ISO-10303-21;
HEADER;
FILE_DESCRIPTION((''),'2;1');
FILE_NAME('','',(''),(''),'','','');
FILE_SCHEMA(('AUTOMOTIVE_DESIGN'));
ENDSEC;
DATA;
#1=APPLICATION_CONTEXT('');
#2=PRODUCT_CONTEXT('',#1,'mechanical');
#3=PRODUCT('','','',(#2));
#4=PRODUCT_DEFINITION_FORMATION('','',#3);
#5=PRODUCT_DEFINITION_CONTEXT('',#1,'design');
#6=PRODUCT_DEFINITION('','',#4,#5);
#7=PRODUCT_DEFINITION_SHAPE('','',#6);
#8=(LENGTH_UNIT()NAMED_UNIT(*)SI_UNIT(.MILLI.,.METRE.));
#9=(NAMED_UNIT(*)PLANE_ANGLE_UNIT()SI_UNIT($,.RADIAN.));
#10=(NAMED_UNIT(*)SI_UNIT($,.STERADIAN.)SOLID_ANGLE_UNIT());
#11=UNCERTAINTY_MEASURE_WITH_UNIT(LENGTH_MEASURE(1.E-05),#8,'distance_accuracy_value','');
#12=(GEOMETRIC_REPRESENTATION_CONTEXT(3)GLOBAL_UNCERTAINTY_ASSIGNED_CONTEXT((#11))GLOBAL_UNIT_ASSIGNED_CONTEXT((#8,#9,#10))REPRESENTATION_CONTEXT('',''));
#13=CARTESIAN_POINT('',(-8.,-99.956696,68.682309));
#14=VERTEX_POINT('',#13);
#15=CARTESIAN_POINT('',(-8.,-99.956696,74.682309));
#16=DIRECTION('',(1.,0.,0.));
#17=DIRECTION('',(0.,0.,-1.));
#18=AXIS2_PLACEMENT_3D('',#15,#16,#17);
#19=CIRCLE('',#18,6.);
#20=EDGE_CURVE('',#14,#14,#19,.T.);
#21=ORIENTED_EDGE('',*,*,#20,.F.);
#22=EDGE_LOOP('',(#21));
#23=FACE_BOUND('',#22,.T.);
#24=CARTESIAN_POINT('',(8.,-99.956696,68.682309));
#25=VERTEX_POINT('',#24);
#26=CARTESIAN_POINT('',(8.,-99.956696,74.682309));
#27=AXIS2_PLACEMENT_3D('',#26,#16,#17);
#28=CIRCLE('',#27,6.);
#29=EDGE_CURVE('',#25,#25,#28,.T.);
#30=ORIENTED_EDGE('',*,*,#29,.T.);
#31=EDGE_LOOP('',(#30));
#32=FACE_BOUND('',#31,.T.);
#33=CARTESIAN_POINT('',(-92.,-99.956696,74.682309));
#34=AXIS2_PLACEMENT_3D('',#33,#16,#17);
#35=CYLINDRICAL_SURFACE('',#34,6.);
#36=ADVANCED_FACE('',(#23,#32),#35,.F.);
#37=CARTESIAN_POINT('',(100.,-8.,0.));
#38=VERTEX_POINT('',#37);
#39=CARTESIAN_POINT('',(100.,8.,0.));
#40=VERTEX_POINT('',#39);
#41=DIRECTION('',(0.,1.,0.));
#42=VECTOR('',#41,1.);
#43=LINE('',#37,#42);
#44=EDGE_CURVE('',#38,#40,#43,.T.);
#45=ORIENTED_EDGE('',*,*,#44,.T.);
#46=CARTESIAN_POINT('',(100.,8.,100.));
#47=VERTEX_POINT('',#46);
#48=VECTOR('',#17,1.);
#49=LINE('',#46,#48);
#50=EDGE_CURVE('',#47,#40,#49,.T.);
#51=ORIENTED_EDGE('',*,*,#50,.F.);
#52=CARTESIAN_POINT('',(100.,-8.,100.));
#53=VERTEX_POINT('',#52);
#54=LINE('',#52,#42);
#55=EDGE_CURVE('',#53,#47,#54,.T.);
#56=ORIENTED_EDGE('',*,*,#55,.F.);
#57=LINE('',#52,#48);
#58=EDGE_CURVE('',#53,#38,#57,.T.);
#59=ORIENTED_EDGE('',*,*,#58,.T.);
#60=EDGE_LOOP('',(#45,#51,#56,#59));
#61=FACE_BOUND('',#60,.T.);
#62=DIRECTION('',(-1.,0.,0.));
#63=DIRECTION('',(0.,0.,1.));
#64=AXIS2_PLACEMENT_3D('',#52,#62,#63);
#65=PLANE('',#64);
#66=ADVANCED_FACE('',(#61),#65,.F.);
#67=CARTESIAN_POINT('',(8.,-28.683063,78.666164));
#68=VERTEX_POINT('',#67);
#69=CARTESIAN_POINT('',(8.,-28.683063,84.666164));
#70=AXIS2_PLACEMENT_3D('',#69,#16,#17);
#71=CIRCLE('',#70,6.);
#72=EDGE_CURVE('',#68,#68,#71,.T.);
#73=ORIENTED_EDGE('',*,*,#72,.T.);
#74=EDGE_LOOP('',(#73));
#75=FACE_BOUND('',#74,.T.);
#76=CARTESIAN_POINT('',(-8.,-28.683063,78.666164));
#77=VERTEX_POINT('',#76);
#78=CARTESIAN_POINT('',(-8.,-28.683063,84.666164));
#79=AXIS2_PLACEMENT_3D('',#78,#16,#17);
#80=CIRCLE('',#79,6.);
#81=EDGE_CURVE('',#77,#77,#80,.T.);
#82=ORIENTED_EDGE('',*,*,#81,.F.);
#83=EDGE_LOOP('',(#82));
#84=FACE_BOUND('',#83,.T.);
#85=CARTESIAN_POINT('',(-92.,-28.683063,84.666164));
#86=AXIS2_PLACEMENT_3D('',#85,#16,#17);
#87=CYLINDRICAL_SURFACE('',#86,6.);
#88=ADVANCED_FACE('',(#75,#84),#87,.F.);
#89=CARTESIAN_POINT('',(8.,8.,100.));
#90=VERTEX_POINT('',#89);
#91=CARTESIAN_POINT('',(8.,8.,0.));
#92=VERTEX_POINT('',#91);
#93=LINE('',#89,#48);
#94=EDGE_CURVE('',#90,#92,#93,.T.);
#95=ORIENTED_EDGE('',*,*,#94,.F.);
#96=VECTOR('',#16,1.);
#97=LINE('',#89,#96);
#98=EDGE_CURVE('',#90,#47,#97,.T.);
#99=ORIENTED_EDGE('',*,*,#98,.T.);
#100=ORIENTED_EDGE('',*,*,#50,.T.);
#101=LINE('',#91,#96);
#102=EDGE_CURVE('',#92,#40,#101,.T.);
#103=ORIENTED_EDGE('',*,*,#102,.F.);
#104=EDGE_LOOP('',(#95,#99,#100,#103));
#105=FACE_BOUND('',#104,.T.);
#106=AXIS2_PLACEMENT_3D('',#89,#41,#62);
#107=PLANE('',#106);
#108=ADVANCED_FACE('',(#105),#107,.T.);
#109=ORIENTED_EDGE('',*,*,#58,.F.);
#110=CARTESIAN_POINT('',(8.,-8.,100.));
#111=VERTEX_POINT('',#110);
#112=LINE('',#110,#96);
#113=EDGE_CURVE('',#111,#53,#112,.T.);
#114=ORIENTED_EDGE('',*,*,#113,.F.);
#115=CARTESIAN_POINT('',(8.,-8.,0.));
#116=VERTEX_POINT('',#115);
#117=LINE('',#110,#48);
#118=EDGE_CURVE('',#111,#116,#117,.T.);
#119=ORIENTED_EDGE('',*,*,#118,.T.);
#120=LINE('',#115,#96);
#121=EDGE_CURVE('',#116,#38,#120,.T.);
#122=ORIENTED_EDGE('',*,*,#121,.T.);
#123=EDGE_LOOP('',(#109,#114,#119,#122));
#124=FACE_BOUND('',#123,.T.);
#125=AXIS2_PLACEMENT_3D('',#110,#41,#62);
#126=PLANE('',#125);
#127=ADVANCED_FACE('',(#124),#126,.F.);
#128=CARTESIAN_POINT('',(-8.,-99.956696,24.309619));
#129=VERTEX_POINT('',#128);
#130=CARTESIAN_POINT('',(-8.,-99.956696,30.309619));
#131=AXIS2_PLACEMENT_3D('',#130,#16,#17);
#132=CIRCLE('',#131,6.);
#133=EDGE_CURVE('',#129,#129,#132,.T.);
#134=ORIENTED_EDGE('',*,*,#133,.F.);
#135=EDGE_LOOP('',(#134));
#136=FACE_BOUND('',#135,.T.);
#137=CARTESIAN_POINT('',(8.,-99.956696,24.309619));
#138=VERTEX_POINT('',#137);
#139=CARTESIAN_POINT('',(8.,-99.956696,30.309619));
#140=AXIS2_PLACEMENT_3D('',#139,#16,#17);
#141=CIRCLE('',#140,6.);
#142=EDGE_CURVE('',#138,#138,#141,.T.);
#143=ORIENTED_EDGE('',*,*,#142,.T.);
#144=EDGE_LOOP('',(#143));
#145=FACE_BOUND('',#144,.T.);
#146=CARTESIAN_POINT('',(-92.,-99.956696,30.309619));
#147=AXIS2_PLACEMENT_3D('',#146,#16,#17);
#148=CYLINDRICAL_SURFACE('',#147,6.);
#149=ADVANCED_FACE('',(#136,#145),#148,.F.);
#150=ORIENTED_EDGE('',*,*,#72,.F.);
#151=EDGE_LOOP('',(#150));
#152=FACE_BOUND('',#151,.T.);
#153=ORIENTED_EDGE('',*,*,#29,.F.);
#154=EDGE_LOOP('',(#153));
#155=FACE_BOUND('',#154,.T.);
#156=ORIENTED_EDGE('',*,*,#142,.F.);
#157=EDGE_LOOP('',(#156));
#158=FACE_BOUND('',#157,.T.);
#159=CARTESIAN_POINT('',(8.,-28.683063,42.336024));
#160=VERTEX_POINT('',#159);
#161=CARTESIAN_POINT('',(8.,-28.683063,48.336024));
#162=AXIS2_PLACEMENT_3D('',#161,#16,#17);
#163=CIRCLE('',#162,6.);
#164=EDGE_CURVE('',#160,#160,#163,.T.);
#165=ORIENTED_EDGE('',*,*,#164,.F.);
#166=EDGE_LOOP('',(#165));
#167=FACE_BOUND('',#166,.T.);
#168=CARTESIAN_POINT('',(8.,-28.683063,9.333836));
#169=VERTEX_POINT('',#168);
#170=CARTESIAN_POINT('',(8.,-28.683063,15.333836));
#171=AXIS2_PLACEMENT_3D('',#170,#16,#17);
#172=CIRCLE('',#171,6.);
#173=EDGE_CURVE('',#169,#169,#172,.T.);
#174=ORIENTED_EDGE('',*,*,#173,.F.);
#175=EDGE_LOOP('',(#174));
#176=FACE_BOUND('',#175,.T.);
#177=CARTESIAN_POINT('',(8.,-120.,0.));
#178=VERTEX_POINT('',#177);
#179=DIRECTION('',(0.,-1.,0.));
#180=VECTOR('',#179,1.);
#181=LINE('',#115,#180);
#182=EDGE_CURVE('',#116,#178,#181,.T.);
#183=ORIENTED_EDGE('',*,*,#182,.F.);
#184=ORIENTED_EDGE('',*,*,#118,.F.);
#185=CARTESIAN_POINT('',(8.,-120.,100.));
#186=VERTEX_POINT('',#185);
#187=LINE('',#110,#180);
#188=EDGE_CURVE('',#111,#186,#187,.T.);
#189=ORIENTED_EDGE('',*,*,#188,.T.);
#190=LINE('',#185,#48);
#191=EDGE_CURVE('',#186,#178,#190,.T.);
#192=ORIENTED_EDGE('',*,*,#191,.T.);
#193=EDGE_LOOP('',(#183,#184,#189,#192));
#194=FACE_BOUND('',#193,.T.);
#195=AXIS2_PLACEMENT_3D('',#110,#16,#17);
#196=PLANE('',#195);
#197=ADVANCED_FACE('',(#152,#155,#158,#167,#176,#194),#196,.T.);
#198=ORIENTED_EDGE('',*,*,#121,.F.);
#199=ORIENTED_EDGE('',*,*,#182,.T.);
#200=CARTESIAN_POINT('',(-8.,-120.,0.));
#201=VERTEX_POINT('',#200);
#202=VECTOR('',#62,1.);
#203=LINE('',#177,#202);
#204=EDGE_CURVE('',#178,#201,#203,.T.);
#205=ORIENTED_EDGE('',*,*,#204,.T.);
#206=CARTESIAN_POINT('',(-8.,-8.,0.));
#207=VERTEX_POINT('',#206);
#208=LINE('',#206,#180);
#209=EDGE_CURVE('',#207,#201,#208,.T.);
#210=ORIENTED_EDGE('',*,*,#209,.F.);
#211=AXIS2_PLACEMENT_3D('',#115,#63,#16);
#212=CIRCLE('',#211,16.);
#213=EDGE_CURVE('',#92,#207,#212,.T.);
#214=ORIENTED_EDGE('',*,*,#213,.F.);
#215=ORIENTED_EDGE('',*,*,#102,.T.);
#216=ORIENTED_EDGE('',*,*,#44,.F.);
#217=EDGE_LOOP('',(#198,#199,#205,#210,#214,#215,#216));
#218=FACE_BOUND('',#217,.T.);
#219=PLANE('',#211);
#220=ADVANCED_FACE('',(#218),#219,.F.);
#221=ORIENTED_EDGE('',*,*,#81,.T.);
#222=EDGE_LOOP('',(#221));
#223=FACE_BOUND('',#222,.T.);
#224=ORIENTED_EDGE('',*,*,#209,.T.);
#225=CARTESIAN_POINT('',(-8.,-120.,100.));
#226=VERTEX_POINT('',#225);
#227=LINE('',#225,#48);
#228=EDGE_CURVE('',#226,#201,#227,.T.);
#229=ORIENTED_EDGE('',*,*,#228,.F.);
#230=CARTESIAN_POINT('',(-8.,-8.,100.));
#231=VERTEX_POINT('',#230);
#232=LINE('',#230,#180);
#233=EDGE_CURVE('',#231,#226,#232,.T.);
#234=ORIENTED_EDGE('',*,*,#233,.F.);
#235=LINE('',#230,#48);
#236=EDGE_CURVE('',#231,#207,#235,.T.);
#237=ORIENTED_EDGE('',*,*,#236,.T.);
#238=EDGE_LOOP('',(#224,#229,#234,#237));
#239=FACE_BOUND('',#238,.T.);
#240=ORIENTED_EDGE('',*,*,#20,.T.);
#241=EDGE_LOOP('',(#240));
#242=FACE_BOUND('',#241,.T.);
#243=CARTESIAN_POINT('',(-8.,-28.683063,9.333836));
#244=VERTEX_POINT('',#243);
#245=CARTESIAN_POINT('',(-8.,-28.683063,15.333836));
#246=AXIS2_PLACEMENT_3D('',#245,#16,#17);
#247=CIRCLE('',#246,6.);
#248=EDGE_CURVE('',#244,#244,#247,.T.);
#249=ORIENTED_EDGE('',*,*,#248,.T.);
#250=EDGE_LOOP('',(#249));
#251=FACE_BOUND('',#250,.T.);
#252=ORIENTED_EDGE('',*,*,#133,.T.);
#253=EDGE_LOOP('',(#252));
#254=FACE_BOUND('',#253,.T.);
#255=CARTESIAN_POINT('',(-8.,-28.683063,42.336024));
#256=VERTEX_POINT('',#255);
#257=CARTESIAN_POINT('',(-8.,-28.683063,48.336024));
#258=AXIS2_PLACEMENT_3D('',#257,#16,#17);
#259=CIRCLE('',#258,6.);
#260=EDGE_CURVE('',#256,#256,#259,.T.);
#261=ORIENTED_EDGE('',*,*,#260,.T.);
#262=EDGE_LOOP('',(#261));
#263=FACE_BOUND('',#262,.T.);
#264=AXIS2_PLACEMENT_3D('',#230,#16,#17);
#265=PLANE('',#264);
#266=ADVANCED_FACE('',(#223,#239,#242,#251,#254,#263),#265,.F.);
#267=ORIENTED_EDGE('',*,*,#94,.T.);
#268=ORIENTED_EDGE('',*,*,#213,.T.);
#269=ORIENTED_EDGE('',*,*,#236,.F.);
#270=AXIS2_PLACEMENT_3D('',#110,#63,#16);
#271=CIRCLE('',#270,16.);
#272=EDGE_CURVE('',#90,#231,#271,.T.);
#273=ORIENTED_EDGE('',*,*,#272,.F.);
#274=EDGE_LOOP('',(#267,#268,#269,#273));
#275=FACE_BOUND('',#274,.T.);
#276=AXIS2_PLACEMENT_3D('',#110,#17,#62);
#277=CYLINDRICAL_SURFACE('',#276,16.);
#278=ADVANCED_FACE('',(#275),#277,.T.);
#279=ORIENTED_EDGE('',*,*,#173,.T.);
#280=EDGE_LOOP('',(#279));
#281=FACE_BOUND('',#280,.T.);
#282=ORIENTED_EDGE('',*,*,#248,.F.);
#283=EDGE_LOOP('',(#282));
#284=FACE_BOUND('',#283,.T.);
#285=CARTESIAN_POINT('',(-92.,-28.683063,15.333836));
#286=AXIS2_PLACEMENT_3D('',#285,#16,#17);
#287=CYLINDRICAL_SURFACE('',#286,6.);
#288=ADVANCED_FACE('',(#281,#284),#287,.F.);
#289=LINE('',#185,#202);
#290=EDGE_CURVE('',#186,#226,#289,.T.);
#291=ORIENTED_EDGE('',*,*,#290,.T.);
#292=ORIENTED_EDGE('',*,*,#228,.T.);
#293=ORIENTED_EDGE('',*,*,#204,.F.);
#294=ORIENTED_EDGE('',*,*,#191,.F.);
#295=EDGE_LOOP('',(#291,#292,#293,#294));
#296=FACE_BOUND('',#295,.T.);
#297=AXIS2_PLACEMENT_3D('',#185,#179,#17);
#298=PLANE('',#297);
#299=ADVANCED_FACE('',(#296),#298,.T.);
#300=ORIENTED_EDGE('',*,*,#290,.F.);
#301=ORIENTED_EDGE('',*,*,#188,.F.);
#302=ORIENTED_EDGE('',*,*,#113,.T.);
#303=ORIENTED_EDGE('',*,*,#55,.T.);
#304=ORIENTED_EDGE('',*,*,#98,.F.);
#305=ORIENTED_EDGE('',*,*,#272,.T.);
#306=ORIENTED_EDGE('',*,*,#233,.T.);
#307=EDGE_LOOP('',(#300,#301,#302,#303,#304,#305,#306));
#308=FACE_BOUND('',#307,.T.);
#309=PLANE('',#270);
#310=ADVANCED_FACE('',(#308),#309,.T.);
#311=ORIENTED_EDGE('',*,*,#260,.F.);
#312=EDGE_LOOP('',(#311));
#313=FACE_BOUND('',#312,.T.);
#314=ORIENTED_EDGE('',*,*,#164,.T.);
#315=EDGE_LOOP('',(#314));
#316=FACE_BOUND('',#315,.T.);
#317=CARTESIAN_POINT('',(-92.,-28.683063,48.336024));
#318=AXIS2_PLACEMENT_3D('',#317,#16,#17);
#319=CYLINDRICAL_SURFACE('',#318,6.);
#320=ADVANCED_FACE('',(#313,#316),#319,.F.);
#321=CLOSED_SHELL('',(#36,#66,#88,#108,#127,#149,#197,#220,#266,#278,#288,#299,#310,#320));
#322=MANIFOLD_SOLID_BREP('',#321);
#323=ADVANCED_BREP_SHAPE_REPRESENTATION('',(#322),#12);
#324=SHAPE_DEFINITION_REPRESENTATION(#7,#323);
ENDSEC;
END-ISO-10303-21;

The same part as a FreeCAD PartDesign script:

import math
import FreeCAD as App
import Part
import Sketcher
from FreeCAD import Vector

doc = App.newDocument("Part")
body = doc.addObject("PartDesign::Body", "Body")

# Sketch on XY plane
sketch1 = doc.addObject("Sketcher::SketchObject", "Sketch")
body.addObject(sketch1)
sketch1.AttachmentSupport = (doc.XY_Plane, [""])
sketch1.MapMode = "FlatFace"
sketch1.addGeometry([
    Part.LineSegment(Vector(8, -120, 0), Vector(8, -8, 0)),  # 0
    Part.LineSegment(Vector(8, -8, 0), Vector(100, -8, 0)),  # 1
    Part.LineSegment(Vector(100, -8, 0), Vector(100, 8, 0)),  # 2
    Part.LineSegment(Vector(100, 8, 0), Vector(8, 8, 0)),  # 3
    Part.ArcOfCircle(Part.Circle(Vector(8, -8, 0), Vector(0, 0, 1), 16), math.radians(90), math.radians(180)),  # 4
    Part.LineSegment(Vector(-8, -8, 0), Vector(-8, -120, 0)),  # 5
    Part.LineSegment(Vector(-8, -120, 0), Vector(8, -120, 0)),  # 6
], False)
sketch1.addConstraint([
    Sketcher.Constraint("Coincident", 0, 2, 1, 1),
    Sketcher.Constraint("Coincident", 1, 2, 2, 1),
    Sketcher.Constraint("Coincident", 2, 2, 3, 1),
    Sketcher.Constraint("Tangent", 3, 2, 4, 1),
    Sketcher.Constraint("Tangent", 4, 2, 5, 1),
    Sketcher.Constraint("Coincident", 5, 2, 6, 1),
    Sketcher.Constraint("Coincident", 6, 2, 0, 1),
    Sketcher.Constraint("Vertical", 0),
    Sketcher.Constraint("Horizontal", 1),
    Sketcher.Constraint("Vertical", 2),
    Sketcher.Constraint("Horizontal", 3),
    Sketcher.Constraint("Vertical", 5),
    Sketcher.Constraint("Horizontal", 6),
    Sketcher.Constraint("Coincident", 0, 2, 4, 3),
    Sketcher.Constraint("Symmetric", 3, 2, 4, 2, -1, 1),
    Sketcher.Constraint("Radius", 4, 16.0),
    Sketcher.Constraint("DistanceX", 1, 1, 1, 2, 92.0),
    Sketcher.Constraint("DistanceY", 0, 1, 0, 2, 112.0),
])
pad1 = doc.addObject("PartDesign::Pad", "Pad")
body.addObject(pad1)
pad1.Profile = sketch1
pad1.Length = 100

# Sketch on YZ plane
sketch2 = doc.addObject("Sketcher::SketchObject", "Sketch001")
body.addObject(sketch2)
sketch2.AttachmentSupport = (doc.YZ_Plane, [""])
sketch2.MapMode = "FlatFace"
sketch2.AttachmentOffset = App.Placement(Vector(0, 0, 8), App.Rotation())
sketch2.addGeometry([
    Part.Circle(Vector(-29, 85, 0), Vector(0, 0, 1), 6),  # 0
    Part.Circle(Vector(-29, 48, 0), Vector(0, 0, 1), 6),  # 1
    Part.Circle(Vector(-29, 15, 0), Vector(0, 0, 1), 6),  # 2
    Part.Circle(Vector(-100, 75, 0), Vector(0, 0, 1), 6),  # 3
    Part.Circle(Vector(-100, 30, 0), Vector(0, 0, 1), 6),  # 4
], False)
sketch2.addConstraint([
    Sketcher.Constraint("Equal", 0, 1),
    Sketcher.Constraint("Equal", 1, 2),
    Sketcher.Constraint("Equal", 2, 3),
    Sketcher.Constraint("Equal", 3, 4),
    Sketcher.Constraint("Vertical", 0, 3, 1, 3),
    Sketcher.Constraint("Vertical", 1, 3, 2, 3),
    Sketcher.Constraint("Vertical", 3, 3, 4, 3),
    Sketcher.Constraint("Diameter", 0, 12.0),
    Sketcher.Constraint("DistanceY", -1, 1, 3, 3, 74.682309),
    Sketcher.Constraint("DistanceY", -1, 1, 4, 3, 30.309619),
    Sketcher.Constraint("DistanceY", 1, 3, 0, 3, 36.33014),
    Sketcher.Constraint("DistanceY", 2, 3, 1, 3, 33.002188),
    Sketcher.Constraint("DistanceX", 0, 3, -1, 1, 28.683063),
    Sketcher.Constraint("DistanceY", -1, 1, 0, 3, 84.666164),
    Sketcher.Constraint("DistanceX", 3, 3, -1, 1, 99.956696),
])
pocket1 = doc.addObject("PartDesign::Pocket", "Pocket")
body.addObject(pocket1)
pocket1.Profile = sketch2
pocket1.Length = 100

doc.recompute()
